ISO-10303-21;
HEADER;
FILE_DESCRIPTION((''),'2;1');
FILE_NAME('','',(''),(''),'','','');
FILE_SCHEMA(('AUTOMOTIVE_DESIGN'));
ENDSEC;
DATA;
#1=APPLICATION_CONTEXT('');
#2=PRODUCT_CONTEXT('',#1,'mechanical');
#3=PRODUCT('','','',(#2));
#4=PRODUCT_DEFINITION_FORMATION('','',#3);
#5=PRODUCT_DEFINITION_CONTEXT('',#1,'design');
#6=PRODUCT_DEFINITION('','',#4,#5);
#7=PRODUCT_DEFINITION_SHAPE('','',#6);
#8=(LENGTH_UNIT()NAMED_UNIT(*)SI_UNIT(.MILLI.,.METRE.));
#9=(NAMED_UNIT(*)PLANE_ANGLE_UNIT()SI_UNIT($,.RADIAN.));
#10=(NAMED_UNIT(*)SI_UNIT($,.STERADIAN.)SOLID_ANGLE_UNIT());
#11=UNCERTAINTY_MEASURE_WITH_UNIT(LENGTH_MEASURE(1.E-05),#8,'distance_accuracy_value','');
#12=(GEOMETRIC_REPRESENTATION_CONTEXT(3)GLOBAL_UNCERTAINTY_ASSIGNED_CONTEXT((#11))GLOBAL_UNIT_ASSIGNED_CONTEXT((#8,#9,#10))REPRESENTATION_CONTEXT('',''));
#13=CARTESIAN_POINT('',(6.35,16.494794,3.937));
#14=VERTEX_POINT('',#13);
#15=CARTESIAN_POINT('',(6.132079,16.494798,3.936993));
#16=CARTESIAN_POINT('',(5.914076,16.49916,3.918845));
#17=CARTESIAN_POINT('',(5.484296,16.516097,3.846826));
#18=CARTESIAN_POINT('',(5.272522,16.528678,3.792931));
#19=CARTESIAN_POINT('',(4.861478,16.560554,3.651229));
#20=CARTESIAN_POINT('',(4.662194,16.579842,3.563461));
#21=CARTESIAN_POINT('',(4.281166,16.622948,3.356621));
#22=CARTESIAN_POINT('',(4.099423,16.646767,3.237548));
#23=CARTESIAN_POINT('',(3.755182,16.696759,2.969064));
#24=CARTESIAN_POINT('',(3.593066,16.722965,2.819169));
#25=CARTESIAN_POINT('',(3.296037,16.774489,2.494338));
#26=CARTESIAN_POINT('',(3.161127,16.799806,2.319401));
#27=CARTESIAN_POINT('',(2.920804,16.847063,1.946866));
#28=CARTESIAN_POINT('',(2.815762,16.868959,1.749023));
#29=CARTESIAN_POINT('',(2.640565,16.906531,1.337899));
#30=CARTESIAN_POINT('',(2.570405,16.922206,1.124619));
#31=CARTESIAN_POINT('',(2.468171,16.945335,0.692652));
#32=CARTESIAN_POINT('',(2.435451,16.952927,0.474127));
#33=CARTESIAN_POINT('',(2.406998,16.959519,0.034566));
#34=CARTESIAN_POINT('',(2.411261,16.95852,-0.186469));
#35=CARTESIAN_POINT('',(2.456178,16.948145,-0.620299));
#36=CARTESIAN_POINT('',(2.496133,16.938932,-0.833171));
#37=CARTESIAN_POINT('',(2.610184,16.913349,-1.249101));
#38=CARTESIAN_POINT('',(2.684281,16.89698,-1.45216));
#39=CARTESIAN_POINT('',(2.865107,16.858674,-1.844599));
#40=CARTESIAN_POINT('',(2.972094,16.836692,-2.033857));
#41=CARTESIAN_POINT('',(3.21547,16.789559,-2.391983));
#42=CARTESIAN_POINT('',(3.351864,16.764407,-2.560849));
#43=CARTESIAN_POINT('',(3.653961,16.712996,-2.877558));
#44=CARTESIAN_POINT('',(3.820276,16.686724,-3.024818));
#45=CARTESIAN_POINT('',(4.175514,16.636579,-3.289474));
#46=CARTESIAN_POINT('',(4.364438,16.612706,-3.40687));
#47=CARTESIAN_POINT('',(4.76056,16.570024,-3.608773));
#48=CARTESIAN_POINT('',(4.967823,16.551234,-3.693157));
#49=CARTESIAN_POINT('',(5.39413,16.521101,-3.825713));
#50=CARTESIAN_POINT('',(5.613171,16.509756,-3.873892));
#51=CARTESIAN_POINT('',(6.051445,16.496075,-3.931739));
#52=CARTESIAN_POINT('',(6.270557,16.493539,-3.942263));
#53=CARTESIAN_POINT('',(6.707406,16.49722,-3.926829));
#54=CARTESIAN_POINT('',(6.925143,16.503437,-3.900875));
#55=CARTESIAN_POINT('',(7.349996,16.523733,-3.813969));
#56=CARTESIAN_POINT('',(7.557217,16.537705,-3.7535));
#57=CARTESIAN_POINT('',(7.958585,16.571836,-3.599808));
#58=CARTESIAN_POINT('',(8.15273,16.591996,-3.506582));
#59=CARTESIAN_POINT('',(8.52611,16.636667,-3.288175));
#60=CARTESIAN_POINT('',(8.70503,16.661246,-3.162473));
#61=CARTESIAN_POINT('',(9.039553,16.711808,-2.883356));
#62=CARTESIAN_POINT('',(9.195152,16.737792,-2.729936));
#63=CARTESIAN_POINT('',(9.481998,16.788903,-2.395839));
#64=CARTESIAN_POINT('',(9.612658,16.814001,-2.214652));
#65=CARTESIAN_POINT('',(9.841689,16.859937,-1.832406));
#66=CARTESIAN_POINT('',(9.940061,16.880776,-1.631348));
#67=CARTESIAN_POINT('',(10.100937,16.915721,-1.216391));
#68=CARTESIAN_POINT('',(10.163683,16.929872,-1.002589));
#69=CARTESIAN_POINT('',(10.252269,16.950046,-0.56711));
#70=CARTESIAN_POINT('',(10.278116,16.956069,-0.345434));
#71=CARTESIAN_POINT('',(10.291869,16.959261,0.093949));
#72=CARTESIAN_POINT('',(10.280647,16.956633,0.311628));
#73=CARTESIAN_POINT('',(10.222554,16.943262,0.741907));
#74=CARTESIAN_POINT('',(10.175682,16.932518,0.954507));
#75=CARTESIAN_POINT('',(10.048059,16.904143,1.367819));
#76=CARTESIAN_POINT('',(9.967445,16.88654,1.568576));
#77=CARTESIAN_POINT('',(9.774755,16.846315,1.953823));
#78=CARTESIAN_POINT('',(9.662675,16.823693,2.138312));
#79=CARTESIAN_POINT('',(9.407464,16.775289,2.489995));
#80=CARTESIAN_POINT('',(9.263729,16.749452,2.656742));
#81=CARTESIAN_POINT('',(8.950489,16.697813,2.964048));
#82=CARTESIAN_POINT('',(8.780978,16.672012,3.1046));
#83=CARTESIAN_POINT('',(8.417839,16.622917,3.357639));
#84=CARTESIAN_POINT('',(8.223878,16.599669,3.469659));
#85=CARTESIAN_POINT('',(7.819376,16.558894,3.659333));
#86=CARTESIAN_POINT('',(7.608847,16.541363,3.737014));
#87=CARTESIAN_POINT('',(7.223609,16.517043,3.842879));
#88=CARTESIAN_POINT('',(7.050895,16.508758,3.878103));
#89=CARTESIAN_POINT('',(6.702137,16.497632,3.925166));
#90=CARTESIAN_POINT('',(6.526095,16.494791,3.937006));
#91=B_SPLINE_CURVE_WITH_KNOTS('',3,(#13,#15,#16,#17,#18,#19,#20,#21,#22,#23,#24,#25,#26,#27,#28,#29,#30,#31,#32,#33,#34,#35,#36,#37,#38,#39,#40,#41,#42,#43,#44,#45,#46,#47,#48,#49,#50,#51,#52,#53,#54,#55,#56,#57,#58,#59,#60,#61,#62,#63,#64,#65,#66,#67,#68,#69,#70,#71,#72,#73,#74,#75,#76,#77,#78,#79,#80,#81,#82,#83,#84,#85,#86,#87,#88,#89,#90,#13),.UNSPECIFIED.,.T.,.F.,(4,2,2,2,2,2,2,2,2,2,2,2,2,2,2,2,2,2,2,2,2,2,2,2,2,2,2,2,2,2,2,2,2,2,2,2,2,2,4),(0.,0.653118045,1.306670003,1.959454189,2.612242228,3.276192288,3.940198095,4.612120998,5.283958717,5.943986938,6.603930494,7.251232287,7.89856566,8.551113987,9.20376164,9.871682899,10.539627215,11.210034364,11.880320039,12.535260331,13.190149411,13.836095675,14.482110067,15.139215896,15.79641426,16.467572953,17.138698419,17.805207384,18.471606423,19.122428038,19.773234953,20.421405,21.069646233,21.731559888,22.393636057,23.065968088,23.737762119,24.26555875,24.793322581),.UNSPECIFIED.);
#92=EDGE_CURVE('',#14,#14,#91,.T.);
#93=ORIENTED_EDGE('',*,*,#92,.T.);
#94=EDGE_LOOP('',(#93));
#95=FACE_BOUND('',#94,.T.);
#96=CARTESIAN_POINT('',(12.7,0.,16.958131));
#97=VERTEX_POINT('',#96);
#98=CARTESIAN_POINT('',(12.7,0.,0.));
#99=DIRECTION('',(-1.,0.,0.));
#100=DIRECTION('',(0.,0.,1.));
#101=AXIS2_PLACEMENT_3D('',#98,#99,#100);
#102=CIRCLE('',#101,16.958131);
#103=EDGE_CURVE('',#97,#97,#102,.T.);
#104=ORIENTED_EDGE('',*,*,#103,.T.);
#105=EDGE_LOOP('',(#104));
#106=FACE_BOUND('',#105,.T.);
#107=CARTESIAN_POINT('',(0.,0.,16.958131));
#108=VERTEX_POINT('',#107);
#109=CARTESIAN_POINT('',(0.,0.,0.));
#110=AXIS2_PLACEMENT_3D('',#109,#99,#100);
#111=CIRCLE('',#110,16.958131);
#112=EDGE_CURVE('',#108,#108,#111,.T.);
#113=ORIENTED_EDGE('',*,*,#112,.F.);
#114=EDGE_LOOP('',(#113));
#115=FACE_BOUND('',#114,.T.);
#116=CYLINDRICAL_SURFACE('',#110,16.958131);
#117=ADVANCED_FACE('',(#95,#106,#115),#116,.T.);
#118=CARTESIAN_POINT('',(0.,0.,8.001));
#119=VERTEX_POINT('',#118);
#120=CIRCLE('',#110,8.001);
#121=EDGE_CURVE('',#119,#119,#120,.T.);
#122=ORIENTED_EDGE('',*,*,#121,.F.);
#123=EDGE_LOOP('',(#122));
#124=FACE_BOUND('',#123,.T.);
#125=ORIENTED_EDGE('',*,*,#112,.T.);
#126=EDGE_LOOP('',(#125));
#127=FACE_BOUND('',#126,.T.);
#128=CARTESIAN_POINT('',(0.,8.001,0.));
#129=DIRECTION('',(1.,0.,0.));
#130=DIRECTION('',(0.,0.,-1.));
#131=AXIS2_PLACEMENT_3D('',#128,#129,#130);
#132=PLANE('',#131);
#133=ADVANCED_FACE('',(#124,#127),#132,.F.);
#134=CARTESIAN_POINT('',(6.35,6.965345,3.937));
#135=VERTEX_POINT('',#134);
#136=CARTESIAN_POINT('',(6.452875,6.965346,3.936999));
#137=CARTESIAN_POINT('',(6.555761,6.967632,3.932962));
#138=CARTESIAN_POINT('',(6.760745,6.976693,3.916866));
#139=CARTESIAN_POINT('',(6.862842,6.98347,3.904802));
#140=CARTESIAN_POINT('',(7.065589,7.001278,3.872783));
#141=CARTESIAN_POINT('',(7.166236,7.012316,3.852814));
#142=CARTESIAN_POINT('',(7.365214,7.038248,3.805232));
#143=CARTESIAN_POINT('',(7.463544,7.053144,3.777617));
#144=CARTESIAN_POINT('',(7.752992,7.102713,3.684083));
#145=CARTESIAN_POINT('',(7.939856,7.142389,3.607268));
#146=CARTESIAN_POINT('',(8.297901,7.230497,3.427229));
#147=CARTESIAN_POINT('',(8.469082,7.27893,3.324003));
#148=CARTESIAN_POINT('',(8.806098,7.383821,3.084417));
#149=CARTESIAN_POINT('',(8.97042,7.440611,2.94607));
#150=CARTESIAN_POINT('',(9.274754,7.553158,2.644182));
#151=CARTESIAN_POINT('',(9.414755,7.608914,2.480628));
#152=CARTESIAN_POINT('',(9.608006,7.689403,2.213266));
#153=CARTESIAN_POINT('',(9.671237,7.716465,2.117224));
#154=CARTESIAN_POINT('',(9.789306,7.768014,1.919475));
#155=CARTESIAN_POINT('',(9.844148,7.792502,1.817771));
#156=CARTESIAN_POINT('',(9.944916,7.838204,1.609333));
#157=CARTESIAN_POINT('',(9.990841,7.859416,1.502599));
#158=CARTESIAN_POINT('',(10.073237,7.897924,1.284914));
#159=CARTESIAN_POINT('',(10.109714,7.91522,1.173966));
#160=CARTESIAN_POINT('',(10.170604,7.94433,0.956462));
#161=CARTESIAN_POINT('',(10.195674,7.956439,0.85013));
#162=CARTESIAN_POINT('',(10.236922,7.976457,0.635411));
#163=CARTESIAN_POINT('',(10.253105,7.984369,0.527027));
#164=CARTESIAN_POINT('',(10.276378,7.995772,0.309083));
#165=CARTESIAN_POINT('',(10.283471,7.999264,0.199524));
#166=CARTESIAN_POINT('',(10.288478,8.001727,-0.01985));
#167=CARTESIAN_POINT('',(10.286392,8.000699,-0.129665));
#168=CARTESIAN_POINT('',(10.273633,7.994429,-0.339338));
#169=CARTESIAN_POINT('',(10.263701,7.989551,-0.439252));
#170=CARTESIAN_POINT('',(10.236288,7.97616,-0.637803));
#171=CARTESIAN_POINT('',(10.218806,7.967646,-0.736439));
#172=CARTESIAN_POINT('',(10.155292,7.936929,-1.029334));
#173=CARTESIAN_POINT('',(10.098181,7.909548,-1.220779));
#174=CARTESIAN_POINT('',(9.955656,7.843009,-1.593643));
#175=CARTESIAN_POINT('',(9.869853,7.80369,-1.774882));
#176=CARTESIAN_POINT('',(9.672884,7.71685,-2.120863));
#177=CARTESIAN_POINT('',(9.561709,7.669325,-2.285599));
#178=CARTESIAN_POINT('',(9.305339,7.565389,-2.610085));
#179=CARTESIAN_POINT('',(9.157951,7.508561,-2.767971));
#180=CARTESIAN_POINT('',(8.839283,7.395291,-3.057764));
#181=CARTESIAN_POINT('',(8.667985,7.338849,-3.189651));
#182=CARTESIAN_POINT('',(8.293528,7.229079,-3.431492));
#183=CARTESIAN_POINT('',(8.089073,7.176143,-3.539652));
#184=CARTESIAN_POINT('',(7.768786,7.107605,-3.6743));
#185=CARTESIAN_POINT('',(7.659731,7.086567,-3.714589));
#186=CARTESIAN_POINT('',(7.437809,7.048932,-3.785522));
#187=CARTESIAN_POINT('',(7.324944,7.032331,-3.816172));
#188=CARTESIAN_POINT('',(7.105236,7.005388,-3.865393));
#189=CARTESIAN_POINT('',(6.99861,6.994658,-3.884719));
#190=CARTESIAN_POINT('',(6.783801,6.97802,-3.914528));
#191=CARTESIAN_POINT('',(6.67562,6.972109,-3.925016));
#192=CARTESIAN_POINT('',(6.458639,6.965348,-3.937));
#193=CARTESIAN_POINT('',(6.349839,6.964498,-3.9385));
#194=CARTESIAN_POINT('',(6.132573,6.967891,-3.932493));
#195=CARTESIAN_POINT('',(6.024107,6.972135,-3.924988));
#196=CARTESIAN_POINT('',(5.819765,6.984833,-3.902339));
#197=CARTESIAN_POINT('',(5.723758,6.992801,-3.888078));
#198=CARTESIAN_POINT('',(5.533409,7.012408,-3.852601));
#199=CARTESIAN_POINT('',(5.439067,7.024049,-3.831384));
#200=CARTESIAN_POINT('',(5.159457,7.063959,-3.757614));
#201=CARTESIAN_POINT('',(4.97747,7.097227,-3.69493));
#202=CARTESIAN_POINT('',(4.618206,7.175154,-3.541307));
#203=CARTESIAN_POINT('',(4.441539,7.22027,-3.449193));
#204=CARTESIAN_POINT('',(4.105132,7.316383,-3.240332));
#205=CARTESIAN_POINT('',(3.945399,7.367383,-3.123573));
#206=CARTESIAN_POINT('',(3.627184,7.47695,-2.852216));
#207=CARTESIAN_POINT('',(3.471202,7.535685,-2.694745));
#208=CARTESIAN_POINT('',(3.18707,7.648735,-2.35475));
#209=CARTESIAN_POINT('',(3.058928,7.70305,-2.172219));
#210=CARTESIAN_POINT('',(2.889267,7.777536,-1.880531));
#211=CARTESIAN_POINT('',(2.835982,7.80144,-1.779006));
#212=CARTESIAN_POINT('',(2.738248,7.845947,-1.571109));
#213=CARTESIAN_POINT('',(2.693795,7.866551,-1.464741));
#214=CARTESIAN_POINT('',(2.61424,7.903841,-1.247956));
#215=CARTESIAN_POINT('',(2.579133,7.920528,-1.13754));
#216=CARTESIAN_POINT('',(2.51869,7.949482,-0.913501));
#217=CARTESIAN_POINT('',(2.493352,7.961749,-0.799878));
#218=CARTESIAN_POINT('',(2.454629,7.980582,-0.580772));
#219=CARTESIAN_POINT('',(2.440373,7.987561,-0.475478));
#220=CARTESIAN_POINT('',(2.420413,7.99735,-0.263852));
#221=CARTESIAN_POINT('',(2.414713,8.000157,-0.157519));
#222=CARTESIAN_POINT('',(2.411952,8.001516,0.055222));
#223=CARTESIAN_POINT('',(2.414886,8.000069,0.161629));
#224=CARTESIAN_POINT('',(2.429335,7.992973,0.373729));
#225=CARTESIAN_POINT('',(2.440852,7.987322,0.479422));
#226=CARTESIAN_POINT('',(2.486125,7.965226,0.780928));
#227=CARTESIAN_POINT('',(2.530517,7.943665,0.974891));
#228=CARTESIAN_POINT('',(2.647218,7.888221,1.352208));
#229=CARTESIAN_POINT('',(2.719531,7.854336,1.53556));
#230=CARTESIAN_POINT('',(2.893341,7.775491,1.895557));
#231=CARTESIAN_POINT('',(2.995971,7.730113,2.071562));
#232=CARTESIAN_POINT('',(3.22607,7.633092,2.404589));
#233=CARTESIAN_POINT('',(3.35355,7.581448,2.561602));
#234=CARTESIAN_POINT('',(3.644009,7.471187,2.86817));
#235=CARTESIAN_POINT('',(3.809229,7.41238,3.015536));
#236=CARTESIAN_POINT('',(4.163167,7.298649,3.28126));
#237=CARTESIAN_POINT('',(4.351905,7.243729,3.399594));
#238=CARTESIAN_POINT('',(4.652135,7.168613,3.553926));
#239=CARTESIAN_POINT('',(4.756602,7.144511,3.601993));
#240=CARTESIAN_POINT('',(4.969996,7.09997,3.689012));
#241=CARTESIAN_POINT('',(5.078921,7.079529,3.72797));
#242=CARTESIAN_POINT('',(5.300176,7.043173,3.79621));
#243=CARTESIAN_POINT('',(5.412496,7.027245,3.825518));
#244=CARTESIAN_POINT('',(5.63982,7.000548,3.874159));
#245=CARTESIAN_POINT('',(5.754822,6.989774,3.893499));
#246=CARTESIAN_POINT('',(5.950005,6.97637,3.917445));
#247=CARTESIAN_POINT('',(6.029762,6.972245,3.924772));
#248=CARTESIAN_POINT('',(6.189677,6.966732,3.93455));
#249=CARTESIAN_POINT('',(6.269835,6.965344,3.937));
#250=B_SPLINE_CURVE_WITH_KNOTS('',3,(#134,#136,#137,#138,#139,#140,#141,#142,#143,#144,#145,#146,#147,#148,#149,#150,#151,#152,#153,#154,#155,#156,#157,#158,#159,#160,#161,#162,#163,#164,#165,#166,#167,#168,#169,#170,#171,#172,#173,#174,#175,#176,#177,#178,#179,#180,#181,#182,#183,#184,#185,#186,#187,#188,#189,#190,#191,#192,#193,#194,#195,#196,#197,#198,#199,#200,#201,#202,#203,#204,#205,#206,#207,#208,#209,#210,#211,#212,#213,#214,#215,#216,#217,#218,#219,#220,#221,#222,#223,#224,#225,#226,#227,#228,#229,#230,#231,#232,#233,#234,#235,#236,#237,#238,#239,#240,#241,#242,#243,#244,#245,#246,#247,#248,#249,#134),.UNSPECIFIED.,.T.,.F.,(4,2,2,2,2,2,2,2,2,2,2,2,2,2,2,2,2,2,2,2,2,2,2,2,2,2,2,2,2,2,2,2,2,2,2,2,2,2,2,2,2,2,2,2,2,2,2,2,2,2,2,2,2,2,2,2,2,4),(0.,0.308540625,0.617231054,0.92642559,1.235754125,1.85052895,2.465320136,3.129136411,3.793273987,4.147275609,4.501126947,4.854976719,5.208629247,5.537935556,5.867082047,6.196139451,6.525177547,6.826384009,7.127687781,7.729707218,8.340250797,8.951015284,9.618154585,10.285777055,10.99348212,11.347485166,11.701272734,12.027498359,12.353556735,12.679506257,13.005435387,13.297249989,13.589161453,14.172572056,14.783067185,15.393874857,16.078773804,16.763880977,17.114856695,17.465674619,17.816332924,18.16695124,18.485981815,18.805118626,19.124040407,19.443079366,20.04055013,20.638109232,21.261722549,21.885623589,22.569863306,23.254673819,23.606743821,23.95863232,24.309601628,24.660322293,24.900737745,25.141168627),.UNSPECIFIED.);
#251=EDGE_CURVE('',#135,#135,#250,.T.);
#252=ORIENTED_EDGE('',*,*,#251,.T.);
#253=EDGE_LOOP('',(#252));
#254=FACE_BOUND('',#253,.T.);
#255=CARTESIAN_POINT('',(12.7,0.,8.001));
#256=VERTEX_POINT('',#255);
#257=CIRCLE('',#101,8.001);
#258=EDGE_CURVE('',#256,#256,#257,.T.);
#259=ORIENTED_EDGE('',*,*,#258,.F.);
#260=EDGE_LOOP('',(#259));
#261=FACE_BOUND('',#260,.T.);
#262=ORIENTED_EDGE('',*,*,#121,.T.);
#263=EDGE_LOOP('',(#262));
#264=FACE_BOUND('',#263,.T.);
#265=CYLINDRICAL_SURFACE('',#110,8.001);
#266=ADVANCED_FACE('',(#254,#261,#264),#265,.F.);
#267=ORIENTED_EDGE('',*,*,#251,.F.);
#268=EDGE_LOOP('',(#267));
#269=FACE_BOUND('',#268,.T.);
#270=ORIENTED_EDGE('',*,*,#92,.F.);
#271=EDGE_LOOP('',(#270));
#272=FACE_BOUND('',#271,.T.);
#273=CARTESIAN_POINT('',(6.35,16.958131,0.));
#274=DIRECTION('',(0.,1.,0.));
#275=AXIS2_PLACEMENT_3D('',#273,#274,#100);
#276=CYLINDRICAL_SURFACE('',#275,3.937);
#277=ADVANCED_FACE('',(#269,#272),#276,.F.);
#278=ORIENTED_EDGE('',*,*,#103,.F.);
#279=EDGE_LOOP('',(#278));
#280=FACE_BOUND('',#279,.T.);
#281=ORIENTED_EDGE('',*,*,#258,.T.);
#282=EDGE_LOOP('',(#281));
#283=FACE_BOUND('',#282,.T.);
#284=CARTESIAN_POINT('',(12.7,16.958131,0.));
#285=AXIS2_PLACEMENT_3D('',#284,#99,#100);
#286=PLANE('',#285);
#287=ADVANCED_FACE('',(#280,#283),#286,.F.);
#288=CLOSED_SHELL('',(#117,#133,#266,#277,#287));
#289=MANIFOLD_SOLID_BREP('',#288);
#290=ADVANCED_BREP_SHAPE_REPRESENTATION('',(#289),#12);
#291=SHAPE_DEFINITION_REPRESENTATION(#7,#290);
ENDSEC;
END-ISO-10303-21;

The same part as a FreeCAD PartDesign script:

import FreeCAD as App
import Part
import Sketcher
Q = App.Units.Quantity

doc = App.newDocument("Part")
params = doc.addObject("Spreadsheet::Sheet", "Params")
for row, (alias, value) in enumerate([
    ("sketch1_width", "0.5 in"),
    ("revolution_angle", "360 deg"),
    ("sketch2_diameter", "0.31 in"),
    ("hole_diameter", "0.31 in"),
    ("hole_depth", "0.7 in"),
], start=1):
    params.set(f"A{row}", alias)
    params.set(f"B{row}", "=" + value)
    params.setAlias(f"B{row}", alias)

body = doc.addObject("PartDesign::Body", "Body")

sketch1 = doc.addObject("Sketcher::SketchObject", "Sketch")
body.addObject(sketch1)
sketch1.AttachmentSupport = (doc.XY_Plane, [""])
sketch1.MapMode = "FlatFace"
sketch1.addGeometry(Part.LineSegment(App.Vector(0, 17, 0), App.Vector(0, 8, 0)), False)
sketch1.addGeometry(Part.LineSegment(App.Vector(0, 8, 0), App.Vector(13, 8, 0)), False)
sketch1.addGeometry(Part.LineSegment(App.Vector(13, 8, 0), App.Vector(13, 17, 0)), False)
sketch1.addGeometry(Part.LineSegment(App.Vector(13, 17, 0), App.Vector(0, 17, 0)), False)
sketch1.addConstraint(Sketcher.Constraint("Coincident", 0, 2, 1, 1))
sketch1.addConstraint(Sketcher.Constraint("Coincident", 1, 2, 2, 1))
sketch1.addConstraint(Sketcher.Constraint("Coincident", 2, 2, 3, 1))
sketch1.addConstraint(Sketcher.Constraint("Coincident", 3, 2, 0, 1))
sketch1.addConstraint(Sketcher.Constraint("Vertical", 0))
sketch1.addConstraint(Sketcher.Constraint("Horizontal", 1))
sketch1.addConstraint(Sketcher.Constraint("Vertical", 2))
sketch1.addConstraint(Sketcher.Constraint("Horizontal", 3))
sketch1.addConstraint(Sketcher.Constraint("PointOnObject", 0, 2, -2))
sketch1.addConstraint(Sketcher.Constraint("DistanceX", 1, 1, 1, 2, Q("0.5 in")))
sketch1.addConstraint(Sketcher.Constraint("DistanceY", -1, 1, 0, 2, Q("0.315 in")))
sketch1.addConstraint(Sketcher.Constraint("DistanceY", 0, 2, 0, 1, 8.957131))
sketch1.setExpression("Constraints[9]", "Params.sketch1_width")
revolution = doc.addObject("PartDesign::Revolution", "Revolution")
body.addObject(revolution)
revolution.Profile = sketch1
revolution.ReferenceAxis = (sketch1, ["H_Axis"])
revolution.setExpression("Angle", "Params.revolution_angle")

sketch2 = doc.addObject("Sketcher::SketchObject", "Sketch001")
body.addObject(sketch2)
sketch2.AttachmentSupport = (doc.XZ_Plane, [""])
sketch2.MapMode = "FlatFace"
sketch2.AttachmentOffset = App.Placement(App.Vector(0, 0, -16.958131), App.Rotation())
sketch2.addGeometry(Part.Circle(App.Vector(6.3, 0, 0), App.Vector(0, 0, 1), 3.9), False)
sketch2.addConstraint(Sketcher.Constraint("PointOnObject", 0, 3, -1))
sketch2.addConstraint(Sketcher.Constraint("Diameter", 0, Q("0.31 in")))
sketch2.addConstraint(Sketcher.Constraint("DistanceX", -1, 1, 0, 3, Q("0.25 in")))
sketch2.setExpression("Constraints[1]", "Params.sketch2_diameter")
doc.recompute()
hole = doc.addObject("PartDesign::Hole", "Hole")
body.addObject(hole)
hole.Profile = sketch2
hole.ThreadType = "None"
hole.setExpression("Diameter", "Params.hole_diameter")
hole.DepthType = "Dimension"
hole.setExpression("Depth", "Params.hole_depth")
hole.DrillPoint = "Flat"
hole.Reversed = True

doc.recompute()
